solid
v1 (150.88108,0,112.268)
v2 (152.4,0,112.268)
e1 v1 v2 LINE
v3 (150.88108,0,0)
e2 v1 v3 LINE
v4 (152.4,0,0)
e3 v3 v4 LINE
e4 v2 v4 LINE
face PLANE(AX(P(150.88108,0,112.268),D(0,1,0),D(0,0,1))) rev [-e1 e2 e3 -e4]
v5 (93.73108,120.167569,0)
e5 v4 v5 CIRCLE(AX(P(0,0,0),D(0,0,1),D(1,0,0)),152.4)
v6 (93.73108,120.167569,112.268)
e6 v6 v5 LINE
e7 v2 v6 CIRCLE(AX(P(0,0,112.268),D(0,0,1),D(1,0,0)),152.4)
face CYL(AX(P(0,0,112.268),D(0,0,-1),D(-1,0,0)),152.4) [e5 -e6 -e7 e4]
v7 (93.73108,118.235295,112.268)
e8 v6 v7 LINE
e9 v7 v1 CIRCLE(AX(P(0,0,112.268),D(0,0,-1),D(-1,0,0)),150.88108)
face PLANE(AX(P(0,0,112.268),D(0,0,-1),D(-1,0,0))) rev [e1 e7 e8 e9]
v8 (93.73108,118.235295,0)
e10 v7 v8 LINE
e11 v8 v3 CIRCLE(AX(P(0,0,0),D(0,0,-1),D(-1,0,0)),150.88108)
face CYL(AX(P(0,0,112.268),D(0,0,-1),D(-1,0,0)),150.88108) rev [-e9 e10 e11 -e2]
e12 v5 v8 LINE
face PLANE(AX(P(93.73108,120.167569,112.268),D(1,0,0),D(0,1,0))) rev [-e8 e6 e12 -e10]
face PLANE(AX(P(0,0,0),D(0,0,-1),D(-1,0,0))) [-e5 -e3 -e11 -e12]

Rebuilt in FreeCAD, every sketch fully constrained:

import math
import FreeCAD as App
import Part
import Sketcher

V = App.Vector
Q = App.Units.Quantity

doc = App.newDocument("Part")
params = doc.addObject("Spreadsheet::Sheet", "Params")
for row, (alias, value) in enumerate([
    ("sketch1_radius", "6 in"),
    ("pad1_length", "4.42 in"),
], start=1):
    params.set(f"A{row}", alias)
    params.set(f"B{row}", "=" + value)
    params.setAlias(f"B{row}", alias)

body = doc.addObject("PartDesign::Body", "Body")

sketch1 = body.newObject("Sketcher::SketchObject", "Sketch")
sketch1.AttachmentSupport = (doc.getObject("XY_Plane"), [""])
sketch1.MapMode = "FlatFace"
sketch1.addGeometry([
    Part.LineSegment(V(93.7, 120.2, 0), V(93.7, 118.2, 0)),
    Part.ArcOfCircle(Part.Circle(V(0, 0, 0), V(0, 0, 1), 150.9), math.radians(0), math.radians(52)),
    Part.LineSegment(V(150.9, 0, 0), V(152.4, 0, 0)),
    Part.ArcOfCircle(Part.Circle(V(0, 0, 0), V(0, 0, 1), 152.4), math.radians(0), math.radians(52)),
], False)
sketch1.addConstraint([
    Sketcher.Constraint("Coincident", 0, 2, 1, 2),
    Sketcher.Constraint("Coincident", 1, 1, 2, 1),
    Sketcher.Constraint("Coincident", 2, 2, 3, 1),
    Sketcher.Constraint("Coincident", 3, 2, 0, 1),
    Sketcher.Constraint("Vertical", 0),
    Sketcher.Constraint("Horizontal", 2),
    Sketcher.Constraint("Coincident", 1, 3, -1, 1),
    Sketcher.Constraint("Coincident", 3, 3, -1, 1),
    Sketcher.Constraint("PointOnObject", 1, 1, -1),
    Sketcher.Constraint("Radius", 3, Q("6 in")),
    Sketcher.Constraint("Radius", 1, Q("5.9402 in")),
    Sketcher.Constraint("DistanceX", 0, 2, 1, 1, Q("2.25 in")),
])
sketch1.setExpression("Constraints[9]", "Params.sketch1_radius")
pad1 = body.newObject("PartDesign::Pad", "Pad")
pad1.Profile = sketch1
pad1.setExpression("Length", "Params.pad1_length")

doc.recompute()
